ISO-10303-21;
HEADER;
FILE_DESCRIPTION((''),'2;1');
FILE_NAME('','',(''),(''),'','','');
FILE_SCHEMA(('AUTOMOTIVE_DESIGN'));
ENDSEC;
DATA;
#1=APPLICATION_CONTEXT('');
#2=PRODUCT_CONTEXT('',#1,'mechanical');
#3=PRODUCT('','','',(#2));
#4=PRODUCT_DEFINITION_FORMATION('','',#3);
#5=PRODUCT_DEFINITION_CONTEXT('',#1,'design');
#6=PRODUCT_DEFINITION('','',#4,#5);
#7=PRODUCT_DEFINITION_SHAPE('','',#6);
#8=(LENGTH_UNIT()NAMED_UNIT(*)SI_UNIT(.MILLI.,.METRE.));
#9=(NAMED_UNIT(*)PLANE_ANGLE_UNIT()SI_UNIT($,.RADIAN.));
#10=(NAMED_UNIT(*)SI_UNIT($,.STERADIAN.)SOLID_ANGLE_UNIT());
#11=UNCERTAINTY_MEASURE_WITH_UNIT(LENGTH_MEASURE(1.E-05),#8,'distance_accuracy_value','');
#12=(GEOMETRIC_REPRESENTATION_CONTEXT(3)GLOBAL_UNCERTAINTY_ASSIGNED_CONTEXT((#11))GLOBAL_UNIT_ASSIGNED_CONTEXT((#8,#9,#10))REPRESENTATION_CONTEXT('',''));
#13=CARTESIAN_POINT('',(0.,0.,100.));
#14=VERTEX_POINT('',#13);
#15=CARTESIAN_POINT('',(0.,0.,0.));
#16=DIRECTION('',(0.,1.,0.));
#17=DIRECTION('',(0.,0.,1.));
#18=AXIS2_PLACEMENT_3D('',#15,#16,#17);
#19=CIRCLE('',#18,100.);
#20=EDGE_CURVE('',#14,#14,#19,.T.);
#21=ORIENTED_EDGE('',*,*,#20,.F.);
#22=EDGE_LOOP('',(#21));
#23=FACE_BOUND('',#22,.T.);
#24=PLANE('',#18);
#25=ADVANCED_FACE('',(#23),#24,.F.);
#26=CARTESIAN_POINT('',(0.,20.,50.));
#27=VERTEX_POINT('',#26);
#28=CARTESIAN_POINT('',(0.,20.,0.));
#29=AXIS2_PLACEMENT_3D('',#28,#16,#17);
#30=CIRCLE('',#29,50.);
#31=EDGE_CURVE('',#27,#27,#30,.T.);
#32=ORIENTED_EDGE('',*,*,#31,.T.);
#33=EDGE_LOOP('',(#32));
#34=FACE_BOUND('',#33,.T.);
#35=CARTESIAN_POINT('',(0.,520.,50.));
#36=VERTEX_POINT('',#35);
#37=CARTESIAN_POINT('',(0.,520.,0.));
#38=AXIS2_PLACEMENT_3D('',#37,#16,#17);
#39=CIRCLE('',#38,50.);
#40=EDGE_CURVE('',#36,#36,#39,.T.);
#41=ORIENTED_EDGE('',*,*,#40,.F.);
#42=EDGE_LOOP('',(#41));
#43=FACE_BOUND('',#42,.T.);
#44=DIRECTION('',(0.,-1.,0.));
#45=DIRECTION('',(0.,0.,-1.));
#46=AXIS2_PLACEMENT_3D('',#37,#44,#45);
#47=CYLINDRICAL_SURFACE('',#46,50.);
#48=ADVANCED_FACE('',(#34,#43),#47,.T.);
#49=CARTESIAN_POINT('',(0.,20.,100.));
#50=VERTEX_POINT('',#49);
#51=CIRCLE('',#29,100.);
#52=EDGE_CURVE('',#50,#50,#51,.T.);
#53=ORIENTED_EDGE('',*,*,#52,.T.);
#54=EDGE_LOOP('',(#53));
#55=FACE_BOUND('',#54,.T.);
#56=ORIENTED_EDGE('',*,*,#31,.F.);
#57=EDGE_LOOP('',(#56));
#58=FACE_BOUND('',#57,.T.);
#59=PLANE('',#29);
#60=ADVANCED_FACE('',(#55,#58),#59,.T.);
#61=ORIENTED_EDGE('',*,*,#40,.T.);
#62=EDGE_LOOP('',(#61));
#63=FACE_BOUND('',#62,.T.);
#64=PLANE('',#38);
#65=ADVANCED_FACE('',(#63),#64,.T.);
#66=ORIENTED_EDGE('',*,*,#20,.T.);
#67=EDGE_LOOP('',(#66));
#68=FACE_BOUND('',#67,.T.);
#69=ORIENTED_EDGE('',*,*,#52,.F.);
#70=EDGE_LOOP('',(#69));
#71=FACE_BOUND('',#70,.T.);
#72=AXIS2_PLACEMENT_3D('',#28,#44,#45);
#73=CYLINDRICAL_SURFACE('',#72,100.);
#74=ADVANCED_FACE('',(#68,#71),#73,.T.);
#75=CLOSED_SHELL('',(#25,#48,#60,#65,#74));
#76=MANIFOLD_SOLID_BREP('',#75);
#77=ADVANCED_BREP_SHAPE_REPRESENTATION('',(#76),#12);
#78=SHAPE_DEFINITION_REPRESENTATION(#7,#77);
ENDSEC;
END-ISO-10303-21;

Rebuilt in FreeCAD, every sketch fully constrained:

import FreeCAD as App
import Part
import Sketcher
from FreeCAD import Vector
Q = App.Units.Quantity

doc = App.newDocument("Part")
body = doc.addObject("PartDesign::Body", "Body")

# Sketch on XZ plane
sketch1 = doc.addObject("Sketcher::SketchObject", "Sketch")
body.addObject(sketch1)
sketch1.AttachmentSupport = (doc.XZ_Plane, [""])
sketch1.MapMode = "FlatFace"
sketch1.addGeometry(Part.Circle(Vector(0, 0, 0), Vector(0, 0, 1), 100), False)
sketch1.addConstraint(Sketcher.Constraint("Coincident", 0, 3, -1, 1))
sketch1.addConstraint(Sketcher.Constraint("Diameter", 0, Q("200 mm")))
pad1 = doc.addObject("PartDesign::Pad", "Pad")
body.addObject(pad1)
pad1.Profile = sketch1
pad1.Length = 20
pad1.Reversed = True

# Sketch on XZ plane
sketch2 = doc.addObject("Sketcher::SketchObject", "Sketch001")
body.addObject(sketch2)
sketch2.AttachmentSupport = (doc.XZ_Plane, [""])
sketch2.MapMode = "FlatFace"
sketch2.AttachmentOffset = App.Placement(Vector(0, 0, -20), App.Rotation())
sketch2.addGeometry(Part.Circle(Vector(0, 0, 0), Vector(0, 0, 1), 50), False)
sketch2.addConstraint(Sketcher.Constraint("Coincident", 0, 3, -1, 1))
sketch2.addConstraint(Sketcher.Constraint("Diameter", 0, Q("100 mm")))
pad2 = doc.addObject("PartDesign::Pad", "Pad001")
body.addObject(pad2)
pad2.Profile = sketch2
pad2.Length = 500
pad2.Reversed = True

doc.recompute()
